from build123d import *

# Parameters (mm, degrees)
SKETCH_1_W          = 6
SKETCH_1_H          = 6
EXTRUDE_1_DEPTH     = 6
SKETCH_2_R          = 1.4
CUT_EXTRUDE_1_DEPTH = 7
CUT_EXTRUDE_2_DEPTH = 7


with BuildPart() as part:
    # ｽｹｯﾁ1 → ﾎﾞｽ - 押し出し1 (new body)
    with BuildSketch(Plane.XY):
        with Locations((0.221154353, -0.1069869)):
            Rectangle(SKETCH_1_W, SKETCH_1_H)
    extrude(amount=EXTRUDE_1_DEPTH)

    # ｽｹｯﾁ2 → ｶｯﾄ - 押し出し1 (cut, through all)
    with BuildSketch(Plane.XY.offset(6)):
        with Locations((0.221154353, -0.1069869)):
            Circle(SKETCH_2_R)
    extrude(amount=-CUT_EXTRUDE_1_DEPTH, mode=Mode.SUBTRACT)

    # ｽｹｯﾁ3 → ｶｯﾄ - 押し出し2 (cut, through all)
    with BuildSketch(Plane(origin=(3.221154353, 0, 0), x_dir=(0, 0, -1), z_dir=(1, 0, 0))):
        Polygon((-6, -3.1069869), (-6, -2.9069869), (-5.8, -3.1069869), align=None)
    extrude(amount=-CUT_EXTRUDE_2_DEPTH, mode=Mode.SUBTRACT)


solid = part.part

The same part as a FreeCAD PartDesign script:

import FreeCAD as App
import Part
import Sketcher
from FreeCAD import Vector
Q = App.Units.Quantity

doc = App.newDocument("Part")
body = doc.addObject("PartDesign::Body", "Body")

# Sketch on XY plane
sketch1 = body.newObject("Sketcher::SketchObject", "Sketch")
sketch1.AttachmentSupport = (doc.getObject("XY_Plane"), [""])
sketch1.MapMode = "FlatFace"
sketch1.addGeometry([
    Part.LineSegment(Vector(-3, 3, 0), Vector(-3, -3, 0)),
    Part.LineSegment(Vector(-3, -3, 0), Vector(3, -3, 0)),
    Part.LineSegment(Vector(3, -3, 0), Vector(3, 3, 0)),
    Part.LineSegment(Vector(3, 3, 0), Vector(-3, 3, 0)),
], False)
sketch1.addConstraint([
    Sketcher.Constraint("Coincident", 0, 2, 1, 1),
    Sketcher.Constraint("Coincident", 1, 2, 2, 1),
    Sketcher.Constraint("Coincident", 2, 2, 3, 1),
    Sketcher.Constraint("Coincident", 3, 2, 0, 1),
    Sketcher.Constraint("Vertical", 0),
    Sketcher.Constraint("Horizontal", 1),
    Sketcher.Constraint("Vertical", 2),
    Sketcher.Constraint("Horizontal", 3),
    Sketcher.Constraint("Equal", 3, 0),
    Sketcher.Constraint("DistanceX", 1, 1, 1, 2, Q("6 mm")),
    Sketcher.Constraint("DistanceX", 0, 2, -1, 1, Q("2.778846 mm")),
    Sketcher.Constraint("DistanceY", 0, 2, -1, 1, Q("3.106987 mm")),
])
pad1 = body.newObject("PartDesign::Pad", "Pad")
pad1.Profile = sketch1
pad1.Length = 6

# Sketch on XY plane
sketch2 = body.newObject("Sketcher::SketchObject", "Sketch001")
sketch2.AttachmentSupport = (doc.getObject("XY_Plane"), [""])
sketch2.MapMode = "FlatFace"
sketch2.AttachmentOffset = App.Placement(Vector(0, 0, 6), App.Rotation())
sketch2.addGeometry(Part.Circle(Vector(0.2, -0.1, 0), Vector(0, 0, 1), 1.4), False)
sketch2.addConstraint([
    Sketcher.Constraint("Diameter", 0, Q("2.8 mm")),
    Sketcher.Constraint("DistanceX", -1, 1, 0, 3, Q("0.221154 mm")),
    Sketcher.Constraint("DistanceY", 0, 3, -1, 1, Q("0.106987 mm")),
])
pocket1 = body.newObject("PartDesign::Pocket", "Pocket")
pocket1.Profile = sketch2
pocket1.Type = "ThroughAll"

# Sketch on YZ plane
sketch3 = body.newObject("Sketcher::SketchObject", "Sketch002")
sketch3.AttachmentSupport = (doc.getObject("YZ_Plane"), [""])
sketch3.MapMode = "FlatFace"
sketch3.AttachmentOffset = App.Placement(Vector(0, 0, 3.221154), App.Rotation())
sketch3.addGeometry([
    Part.LineSegment(Vector(-2.91, 6, 0), Vector(-3.11, 6, 0)),
    Part.LineSegment(Vector(-3.11, 6, 0), Vector(-3.11, 5.8, 0)),
    Part.LineSegment(Vector(-3.11, 5.8, 0), Vector(-2.91, 6, 0)),
], False)
sketch3.addConstraint([
    Sketcher.Constraint("Coincident", 0, 2, 1, 1),
    Sketcher.Constraint("Coincident", 1, 2, 2, 1),
    Sketcher.Constraint("Coincident", 2, 2, 0, 1),
    Sketcher.Constraint("Horizontal", 0),
    Sketcher.Constraint("Vertical", 1),
    Sketcher.Constraint("Equal", 0, 1),
    Sketcher.Constraint("DistanceX", 0, 2, 0, 1, Q("0.2 mm")),
    Sketcher.Constraint("DistanceY", -1, 1, 0, 2, Q("6 mm")),
    Sketcher.Constraint("DistanceX", 0, 2, -1, 1, Q("3.106987 mm")),
])
pocket2 = body.newObject("PartDesign::Pocket", "Pocket001")
pocket2.Profile = sketch3
pocket2.Type = "ThroughAll"

doc.recompute()
